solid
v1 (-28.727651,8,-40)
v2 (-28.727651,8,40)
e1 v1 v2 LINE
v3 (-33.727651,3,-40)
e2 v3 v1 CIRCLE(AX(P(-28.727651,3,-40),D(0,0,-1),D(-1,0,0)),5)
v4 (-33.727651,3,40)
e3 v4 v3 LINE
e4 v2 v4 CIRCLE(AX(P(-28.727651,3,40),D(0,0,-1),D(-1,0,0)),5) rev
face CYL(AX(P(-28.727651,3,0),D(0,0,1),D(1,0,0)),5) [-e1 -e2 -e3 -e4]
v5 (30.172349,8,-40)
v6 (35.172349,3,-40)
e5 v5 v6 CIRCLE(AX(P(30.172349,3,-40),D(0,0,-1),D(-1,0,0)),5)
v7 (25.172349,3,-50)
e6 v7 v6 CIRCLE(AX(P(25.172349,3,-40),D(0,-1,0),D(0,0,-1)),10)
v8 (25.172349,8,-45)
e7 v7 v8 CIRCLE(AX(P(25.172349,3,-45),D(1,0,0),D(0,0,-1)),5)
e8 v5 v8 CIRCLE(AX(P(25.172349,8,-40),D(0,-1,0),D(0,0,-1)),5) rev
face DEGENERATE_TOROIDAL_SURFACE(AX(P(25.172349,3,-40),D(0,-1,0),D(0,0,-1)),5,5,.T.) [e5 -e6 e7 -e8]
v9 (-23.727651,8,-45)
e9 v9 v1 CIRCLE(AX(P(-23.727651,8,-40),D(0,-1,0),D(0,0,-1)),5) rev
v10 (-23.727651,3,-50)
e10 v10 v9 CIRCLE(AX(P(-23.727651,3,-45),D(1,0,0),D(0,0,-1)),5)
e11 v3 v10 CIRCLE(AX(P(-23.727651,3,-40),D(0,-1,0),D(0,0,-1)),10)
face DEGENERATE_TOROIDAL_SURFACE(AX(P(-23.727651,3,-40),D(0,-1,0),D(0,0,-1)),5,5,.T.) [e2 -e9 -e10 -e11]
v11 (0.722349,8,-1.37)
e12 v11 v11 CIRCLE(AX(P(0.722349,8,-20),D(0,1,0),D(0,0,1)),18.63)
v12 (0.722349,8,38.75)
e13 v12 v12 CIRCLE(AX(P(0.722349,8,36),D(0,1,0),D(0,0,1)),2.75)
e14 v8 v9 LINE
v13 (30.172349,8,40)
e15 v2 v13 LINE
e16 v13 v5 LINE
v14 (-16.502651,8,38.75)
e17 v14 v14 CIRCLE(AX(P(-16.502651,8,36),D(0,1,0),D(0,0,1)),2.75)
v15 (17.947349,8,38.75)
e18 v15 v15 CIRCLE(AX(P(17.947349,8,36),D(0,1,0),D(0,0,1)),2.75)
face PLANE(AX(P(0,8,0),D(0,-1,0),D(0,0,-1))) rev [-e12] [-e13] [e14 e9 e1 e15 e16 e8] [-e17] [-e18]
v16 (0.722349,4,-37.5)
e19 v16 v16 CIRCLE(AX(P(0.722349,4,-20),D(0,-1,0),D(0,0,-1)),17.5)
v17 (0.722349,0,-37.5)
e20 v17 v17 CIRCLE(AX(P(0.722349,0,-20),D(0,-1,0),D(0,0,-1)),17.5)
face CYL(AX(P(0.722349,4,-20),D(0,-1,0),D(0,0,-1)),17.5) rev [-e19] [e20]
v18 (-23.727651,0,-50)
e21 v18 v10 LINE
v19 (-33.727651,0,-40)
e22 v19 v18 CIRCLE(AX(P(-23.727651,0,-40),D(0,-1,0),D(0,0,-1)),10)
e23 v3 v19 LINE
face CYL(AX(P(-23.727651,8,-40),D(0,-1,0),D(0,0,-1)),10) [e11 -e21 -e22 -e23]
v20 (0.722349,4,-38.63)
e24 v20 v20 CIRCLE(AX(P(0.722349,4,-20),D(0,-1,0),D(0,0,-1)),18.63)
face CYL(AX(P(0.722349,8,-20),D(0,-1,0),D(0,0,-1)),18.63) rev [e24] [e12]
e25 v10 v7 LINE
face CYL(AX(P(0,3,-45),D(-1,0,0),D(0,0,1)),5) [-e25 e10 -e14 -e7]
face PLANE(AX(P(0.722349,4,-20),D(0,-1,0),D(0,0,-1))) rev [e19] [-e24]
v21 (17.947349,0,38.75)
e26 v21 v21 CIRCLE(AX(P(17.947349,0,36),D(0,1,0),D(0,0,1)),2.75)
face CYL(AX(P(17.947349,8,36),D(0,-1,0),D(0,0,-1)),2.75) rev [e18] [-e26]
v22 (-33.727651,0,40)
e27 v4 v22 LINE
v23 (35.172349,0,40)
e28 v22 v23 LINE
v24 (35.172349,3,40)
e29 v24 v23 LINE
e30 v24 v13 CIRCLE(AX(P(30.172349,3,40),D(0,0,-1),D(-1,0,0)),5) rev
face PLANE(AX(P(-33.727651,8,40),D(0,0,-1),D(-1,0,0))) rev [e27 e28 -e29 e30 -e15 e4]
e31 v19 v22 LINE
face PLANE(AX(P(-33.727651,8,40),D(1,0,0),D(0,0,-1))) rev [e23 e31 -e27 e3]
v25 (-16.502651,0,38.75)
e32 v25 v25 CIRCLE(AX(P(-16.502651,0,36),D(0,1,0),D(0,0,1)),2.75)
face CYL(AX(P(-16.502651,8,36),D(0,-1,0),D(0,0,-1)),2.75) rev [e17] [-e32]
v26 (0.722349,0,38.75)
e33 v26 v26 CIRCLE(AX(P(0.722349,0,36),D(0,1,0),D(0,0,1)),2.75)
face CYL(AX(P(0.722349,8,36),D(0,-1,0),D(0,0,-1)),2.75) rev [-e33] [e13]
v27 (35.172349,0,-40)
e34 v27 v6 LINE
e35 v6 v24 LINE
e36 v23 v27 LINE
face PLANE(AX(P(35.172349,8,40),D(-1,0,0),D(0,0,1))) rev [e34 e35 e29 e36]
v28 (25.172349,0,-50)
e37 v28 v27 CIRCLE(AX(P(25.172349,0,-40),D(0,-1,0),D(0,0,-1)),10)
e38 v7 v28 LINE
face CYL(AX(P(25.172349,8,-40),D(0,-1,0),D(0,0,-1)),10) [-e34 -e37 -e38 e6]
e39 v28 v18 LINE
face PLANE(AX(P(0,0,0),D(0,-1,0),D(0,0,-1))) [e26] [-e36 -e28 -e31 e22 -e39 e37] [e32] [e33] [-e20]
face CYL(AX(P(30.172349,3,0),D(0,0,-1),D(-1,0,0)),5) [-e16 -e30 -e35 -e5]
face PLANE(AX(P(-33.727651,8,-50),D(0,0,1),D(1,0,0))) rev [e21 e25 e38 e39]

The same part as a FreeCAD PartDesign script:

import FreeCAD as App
import Part
import Sketcher

V = App.Vector


def edges_at(feature, points):
    """Names of the edges that pass closest to the given points."""
    edges = feature.Shape.Edges
    near = lambda p: min(range(len(edges)), key=lambda i: edges[i].distToShape(Part.Vertex(*p))[0])
    return sorted({f"Edge{near(p) + 1}" for p in points})

doc = App.newDocument("Part")
params = doc.addObject("Spreadsheet::Sheet", "Params")
for row, (alias, value) in enumerate([
    ("sketch1_diameter", "5.5 mm"),
    ("sketch1_diameter2", "37.26 mm"),
    ("sketch1_height", "90 mm"),
    ("sketch1_width", "68.9 mm"),
    ("pad1_length", "8 mm"),
    ("fillet_radius", "10 mm"),
    ("fillet2_radius", "5 mm"),
    ("sketch2_diameter", "35 mm"),
    ("sketch2_diameter2", "37.26 mm"),
    ("pad2_length", "4 mm"),
], start=1):
    params.set(f"A{row}", alias)
    params.set(f"B{row}", "=" + value)
    params.setAlias(f"B{row}", alias)

body = doc.addObject("PartDesign::Body", "Body")

# Sketch on XZ plane
sketch1 = body.newObject("Sketcher::SketchObject", "Sketch")
sketch1.AttachmentSupport = (doc.getObject("XZ_Plane"), [""])
sketch1.MapMode = "FlatFace"
sketch1.addGeometry([
    Part.LineSegment(V(-33.7, -50, 0), V(-33.7, 40, 0)),  # 0
    Part.LineSegment(V(-33.7, 40, 0), V(35.2, 40, 0)),  # 1
    Part.LineSegment(V(35.2, 40, 0), V(35.2, -50, 0)),  # 2
    Part.LineSegment(V(35.2, -50, 0), V(-33.7, -50, 0)),  # 3
    Part.Circle(V(-16.5, 36, 0), V(0, 0, 1), 2.8),  # 4
    Part.Circle(V(0.7, 36, 0), V(0, 0, 1), 2.8),  # 5
    Part.Circle(V(17.9, 36, 0), V(0, 0, 1), 2.8),  # 6
    Part.Circle(V(0.7, -20, 0), V(0, 0, 1), 18.6),  # 7
], False)
sketch1.addConstraint([
    Sketcher.Constraint("Coincident", 0, 2, 1, 1),
    Sketcher.Constraint("Coincident", 1, 2, 2, 1),
    Sketcher.Constraint("Coincident", 2, 2, 3, 1),
    Sketcher.Constraint("Coincident", 3, 2, 0, 1),
    Sketcher.Constraint("Vertical", 0),
    Sketcher.Constraint("Horizontal", 1),
    Sketcher.Constraint("Vertical", 2),
    Sketcher.Constraint("Horizontal", 3),
    Sketcher.Constraint("Equal", 4, 5),
    Sketcher.Constraint("Equal", 5, 6),
    Sketcher.Constraint("Horizontal", 4, 3, 5, 3),
    Sketcher.Constraint("Horizontal", 5, 3, 6, 3),
    Sketcher.Constraint("Vertical", 5, 3, 7, 3),
    Sketcher.Constraint("Diameter", 4, 5.5),
    Sketcher.Constraint("Diameter", 7, 37.26),
    Sketcher.Constraint("DistanceY", 0, 1, 0, 2, 90.0),
    Sketcher.Constraint("DistanceX", 1, 1, 1, 2, 68.9),
    Sketcher.Constraint("DistanceY", -1, 1, 4, 3, 36.0),
    Sketcher.Constraint("DistanceY", 7, 3, -1, 1, 20.0),
    Sketcher.Constraint("DistanceY", -1, 1, 0, 2, 40.0),
    Sketcher.Constraint("DistanceX", 4, 3, 6, 3, 34.45),
    Sketcher.Constraint("DistanceX", 0, 2, 5, 3, 34.45),
    Sketcher.Constraint("DistanceX", 4, 3, 5, 3, 17.225),
    Sketcher.Constraint("DistanceX", 4, 3, -1, 1, 16.502651),
])
sketch1.setExpression("Constraints[13]", "Params.sketch1_diameter")
sketch1.setExpression("Constraints[14]", "Params.sketch1_diameter2")
sketch1.setExpression("Constraints[15]", "Params.sketch1_height")
sketch1.setExpression("Constraints[16]", "Params.sketch1_width")
pad1 = body.newObject("PartDesign::Pad", "Pad")
pad1.Profile = sketch1
pad1.setExpression("Length", "Params.pad1_length")
pad1.Reversed = True
doc.recompute()

fillet = body.newObject("PartDesign::Fillet", "Fillet")
fillet.Base = (pad1, edges_at(pad1, [(-33.728, 4, -50), (35.172, 4, -50)]))
fillet.setExpression("Radius", "Params.fillet_radius")
doc.recompute()

fillet2 = body.newObject("PartDesign::Fillet", "Fillet001")
fillet2.Base = (fillet, edges_at(fillet, [
    (35.172, 8, 0),
    (0.722, 8, -50),
    (-33.728, 8, 0),
    (-30.799, 8, -47.071),
    (32.243, 8, -47.071),
]))
fillet2.setExpression("Radius", "Params.fillet2_radius")

# Sketch on XZ plane
sketch2 = body.newObject("Sketcher::SketchObject", "Sketch001")
sketch2.AttachmentSupport = (doc.getObject("XZ_Plane"), [""])
sketch2.MapMode = "FlatFace"
sketch2.addGeometry([
    Part.Circle(V(1, -20, 0), V(0, 0, 1), 19),
    Part.Circle(V(1, -20, 0), V(0, 0, 1), 18),
], False)
sketch2.addConstraint([
    Sketcher.Constraint("Coincident", 1, 3, 0, 3),
    Sketcher.Constraint("Diameter", 1, 35.0),
    Sketcher.Constraint("Diameter", 0, 37.26),
    Sketcher.Constraint("DistanceY", 0, 3, -1, 1, 20.0),
    Sketcher.Constraint("DistanceX", -1, 1, 0, 3, 0.722349),
])
sketch2.setExpression("Constraints[1]", "Params.sketch2_diameter")
sketch2.setExpression("Constraints[2]", "Params.sketch2_diameter2")
pad2 = body.newObject("PartDesign::Pad", "Pad001")
pad2.Profile = sketch2
pad2.setExpression("Length", "Params.pad2_length")
pad2.Reversed = True

doc.recompute()
